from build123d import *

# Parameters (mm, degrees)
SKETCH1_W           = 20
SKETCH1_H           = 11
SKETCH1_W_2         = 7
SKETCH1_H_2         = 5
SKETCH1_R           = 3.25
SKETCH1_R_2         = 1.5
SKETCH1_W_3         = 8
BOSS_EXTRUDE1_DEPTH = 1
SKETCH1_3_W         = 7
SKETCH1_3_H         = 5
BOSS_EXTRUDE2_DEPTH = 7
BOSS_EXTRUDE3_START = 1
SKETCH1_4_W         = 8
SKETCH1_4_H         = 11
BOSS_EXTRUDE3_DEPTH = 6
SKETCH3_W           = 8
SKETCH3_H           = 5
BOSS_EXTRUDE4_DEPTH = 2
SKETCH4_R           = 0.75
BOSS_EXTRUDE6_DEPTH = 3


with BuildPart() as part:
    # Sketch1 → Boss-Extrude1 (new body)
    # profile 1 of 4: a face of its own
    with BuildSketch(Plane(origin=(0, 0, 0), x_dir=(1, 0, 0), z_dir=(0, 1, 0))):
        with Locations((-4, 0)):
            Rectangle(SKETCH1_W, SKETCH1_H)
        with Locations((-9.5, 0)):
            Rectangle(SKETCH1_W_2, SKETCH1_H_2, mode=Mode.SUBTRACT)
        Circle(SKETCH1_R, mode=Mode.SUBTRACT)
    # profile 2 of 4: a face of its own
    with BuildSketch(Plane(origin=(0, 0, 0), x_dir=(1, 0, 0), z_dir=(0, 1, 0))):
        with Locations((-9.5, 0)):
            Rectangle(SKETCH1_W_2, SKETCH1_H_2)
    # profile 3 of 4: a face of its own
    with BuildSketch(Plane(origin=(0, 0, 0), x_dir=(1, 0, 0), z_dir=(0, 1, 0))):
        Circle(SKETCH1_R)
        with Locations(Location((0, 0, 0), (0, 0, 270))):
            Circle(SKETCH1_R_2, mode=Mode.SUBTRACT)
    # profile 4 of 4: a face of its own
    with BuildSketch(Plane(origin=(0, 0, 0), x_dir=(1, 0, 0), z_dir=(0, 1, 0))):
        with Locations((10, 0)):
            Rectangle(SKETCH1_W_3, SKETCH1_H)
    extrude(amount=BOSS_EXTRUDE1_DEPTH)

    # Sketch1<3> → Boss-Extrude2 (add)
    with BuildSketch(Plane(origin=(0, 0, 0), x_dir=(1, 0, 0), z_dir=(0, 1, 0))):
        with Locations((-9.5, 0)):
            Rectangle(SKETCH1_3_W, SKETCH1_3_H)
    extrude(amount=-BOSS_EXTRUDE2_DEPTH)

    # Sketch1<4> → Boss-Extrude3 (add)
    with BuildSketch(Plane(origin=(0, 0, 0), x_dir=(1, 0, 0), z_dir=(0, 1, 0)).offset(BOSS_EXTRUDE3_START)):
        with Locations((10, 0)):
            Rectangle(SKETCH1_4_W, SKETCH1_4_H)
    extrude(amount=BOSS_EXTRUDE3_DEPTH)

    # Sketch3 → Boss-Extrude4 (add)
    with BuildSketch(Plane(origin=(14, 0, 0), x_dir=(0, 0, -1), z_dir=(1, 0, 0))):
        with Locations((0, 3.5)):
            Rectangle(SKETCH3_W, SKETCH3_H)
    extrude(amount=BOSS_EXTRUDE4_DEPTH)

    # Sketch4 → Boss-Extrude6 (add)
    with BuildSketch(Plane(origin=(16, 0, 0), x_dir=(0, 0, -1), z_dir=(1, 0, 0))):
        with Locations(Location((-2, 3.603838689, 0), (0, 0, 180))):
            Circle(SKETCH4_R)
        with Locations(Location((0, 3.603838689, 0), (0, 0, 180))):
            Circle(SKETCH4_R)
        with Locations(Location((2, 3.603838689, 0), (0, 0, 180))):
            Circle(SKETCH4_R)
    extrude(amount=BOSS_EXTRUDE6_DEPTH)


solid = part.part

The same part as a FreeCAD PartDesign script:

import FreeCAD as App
import Part
import Sketcher
from FreeCAD import Vector


def add_polygon(sketch, points):
    """Adds a closed chain of lines whose ends are joined by coincident constraints."""
    first, n = sketch.GeometryCount, len(points)
    for a, b in zip(points, points[1:] + points[:1]):
        sketch.addGeometry(Part.LineSegment(App.Vector(*a, 0), App.Vector(*b, 0)), False)
    for i in range(n):
        sketch.addConstraint(Sketcher.Constraint("Coincident", first + i, 2, first + (i + 1) % n, 1))

doc = App.newDocument("Part")
body = doc.addObject("PartDesign::Body", "Body")

sketch1 = body.newObject("Sketcher::SketchObject", "Sketch")
sketch1.AttachmentSupport = (doc.getObject("XZ_Plane"), [""])
sketch1.MapMode = "FlatFace"
add_polygon(sketch1, [(-14, -5.5), (-14, 5.5), (14, 5.5), (14, -5.5)])
sketch1.addGeometry(Part.Circle(Vector(0, 0, 0), Vector(0, 0, 1), 1.5), False)
sketch1.addConstraint(Sketcher.Constraint("Vertical", 0))
sketch1.addConstraint(Sketcher.Constraint("Horizontal", 1))
sketch1.addConstraint(Sketcher.Constraint("Vertical", 2))
sketch1.addConstraint(Sketcher.Constraint("Horizontal", 3))
sketch1.addConstraint(Sketcher.Constraint("Coincident", 4, 3, -1, 1))
sketch1.addConstraint(Sketcher.Constraint("Symmetric", 0, 2, 2, 2, -1, 1))
sketch1.addConstraint(Sketcher.Constraint("Diameter", 4, 3.0))
sketch1.addConstraint(Sketcher.Constraint("DistanceX", 1, 1, 1, 2, 28.0))
sketch1.addConstraint(Sketcher.Constraint("DistanceY", 0, 1, 0, 2, 11.0))
pad1 = body.newObject("PartDesign::Pad", "Pad")
pad1.Profile = sketch1
pad1.Length = 1
pad1.Reversed = True

sketch2 = body.newObject("Sketcher::SketchObject", "Sketch001")
sketch2.AttachmentSupport = (doc.getObject("XZ_Plane"), [""])
sketch2.MapMode = "FlatFace"
add_polygon(sketch2, [(-13, -2), (-13, 2), (-6, 2), (-6, -2)])
sketch2.addConstraint(Sketcher.Constraint("Vertical", 0))
sketch2.addConstraint(Sketcher.Constraint("Horizontal", 1))
sketch2.addConstraint(Sketcher.Constraint("Vertical", 2))
sketch2.addConstraint(Sketcher.Constraint("Horizontal", 3))
sketch2.addConstraint(Sketcher.Constraint("DistanceX", 1, 1, 1, 2, 7.0))
sketch2.addConstraint(Sketcher.Constraint("DistanceY", 0, 1, 0, 2, 5.0))
sketch2.addConstraint(Sketcher.Constraint("DistanceX", 0, 2, -1, 1, 13.0))
sketch2.addConstraint(Sketcher.Constraint("DistanceY", -1, 1, 0, 2, 2.5))
pad2 = body.newObject("PartDesign::Pad", "Pad001")
pad2.Profile = sketch2
pad2.Length = 7

sketch3 = body.newObject("Sketcher::SketchObject", "Sketch002")
sketch3.AttachmentSupport = (doc.getObject("XZ_Plane"), [""])
sketch3.MapMode = "FlatFace"
sketch3.AttachmentOffset = App.Placement(Vector(0, 0, -1), App.Rotation())
add_polygon(sketch3, [(6, -6), (6, 6), (14, 6), (14, -6)])
sketch3.addConstraint(Sketcher.Constraint("Vertical", 0))
sketch3.addConstraint(Sketcher.Constraint("Horizontal", 1))
sketch3.addConstraint(Sketcher.Constraint("Vertical", 2))
sketch3.addConstraint(Sketcher.Constraint("Horizontal", 3))
sketch3.addConstraint(Sketcher.Constraint("DistanceX", 1, 1, 1, 2, 8.0))
sketch3.addConstraint(Sketcher.Constraint("DistanceY", 0, 1, 0, 2, 11.0))
sketch3.addConstraint(Sketcher.Constraint("DistanceX", -1, 1, 0, 2, 6.0))
sketch3.addConstraint(Sketcher.Constraint("DistanceY", -1, 1, 0, 2, 5.5))
pad3 = body.newObject("PartDesign::Pad", "Pad002")
pad3.Profile = sketch3
pad3.Length = 6
pad3.Reversed = True

sketch4 = body.newObject("Sketcher::SketchObject", "Sketch003")
sketch4.AttachmentSupport = (doc.getObject("YZ_Plane"), [""])
sketch4.MapMode = "FlatFace"
sketch4.AttachmentOffset = App.Placement(Vector(0, 0, 14), App.Rotation())
add_polygon(sketch4, [(6, 4), (1, 4), (1, -4), (6, -4)])
sketch4.addConstraint(Sketcher.Constraint("Horizontal", 0))
sketch4.addConstraint(Sketcher.Constraint("Vertical", 1))
sketch4.addConstraint(Sketcher.Constraint("Horizontal", 2))
sketch4.addConstraint(Sketcher.Constraint("Vertical", 3))
sketch4.addConstraint(Sketcher.Constraint("DistanceX", 0, 2, 0, 1, 5.0))
sketch4.addConstraint(Sketcher.Constraint("DistanceY", 1, 2, 1, 1, 8.0))
sketch4.addConstraint(Sketcher.Constraint("DistanceX", -1, 1, 0, 2, 1.0))
sketch4.addConstraint(Sketcher.Constraint("DistanceY", -1, 1, 0, 2, 4.0))
pad4 = body.newObject("PartDesign::Pad", "Pad003")
pad4.Profile = sketch4
pad4.Length = 2

sketch5 = body.newObject("Sketcher::SketchObject", "Sketch004")
sketch5.AttachmentSupport = (doc.getObject("YZ_Plane"), [""])
sketch5.MapMode = "FlatFace"
sketch5.AttachmentOffset = App.Placement(Vector(0, 0, 16), App.Rotation())
sketch5.addGeometry(Part.Circle(Vector(3.6, 2, 0), Vector(0, 0, 1), 0.8), False)
sketch5.addGeometry(Part.Circle(Vector(3.6, 0, 0), Vector(0, 0, 1), 0.8), False)
sketch5.addGeometry(Part.Circle(Vector(3.6, -2, 0), Vector(0, 0, 1), 0.8), False)
sketch5.addConstraint(Sketcher.Constraint("Equal", 0, 1))
sketch5.addConstraint(Sketcher.Constraint("Equal", 1, 2))
sketch5.addConstraint(Sketcher.Constraint("Symmetric", 0, 3, 2, 3, -1))
sketch5.addConstraint(Sketcher.Constraint("PointOnObject", 1, 3, -1))
sketch5.addConstraint(Sketcher.Constraint("Vertical", 0, 3, 1, 3))
sketch5.addConstraint(Sketcher.Constraint("Diameter", 0, 1.5))
sketch5.addConstraint(Sketcher.Constraint("DistanceY", -1, 1, 0, 3, 2.0))
sketch5.addConstraint(Sketcher.Constraint("DistanceX", -1, 1, 0, 3, 3.603839))
pad5 = body.newObject("PartDesign::Pad", "Pad004")
pad5.Profile = sketch5
pad5.Length = 3

doc.recompute()
